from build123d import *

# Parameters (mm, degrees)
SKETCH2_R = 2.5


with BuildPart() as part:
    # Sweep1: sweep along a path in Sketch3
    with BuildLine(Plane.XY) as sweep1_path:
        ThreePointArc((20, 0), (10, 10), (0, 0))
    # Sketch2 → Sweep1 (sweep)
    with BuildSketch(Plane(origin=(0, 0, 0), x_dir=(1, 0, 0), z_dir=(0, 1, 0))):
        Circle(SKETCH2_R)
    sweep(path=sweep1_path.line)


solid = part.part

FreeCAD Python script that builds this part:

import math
import FreeCAD as App
import Part
import Sketcher

V = App.Vector

doc = App.newDocument("Part")
body = doc.addObject("PartDesign::Body", "Body")

sketch1 = body.newObject("Sketcher::SketchObject", "Sketch")
sketch1.AttachmentSupport = (doc.getObject("XZ_Plane"), [""])
sketch1.MapMode = "FlatFace"
sketch1.addGeometry(Part.Circle(V(0, 0, 0), V(0, 0, 1), 2.5), False)
sketch1.addConstraint([
    Sketcher.Constraint("Coincident", 0, 3, -1, 1),
    Sketcher.Constraint("Diameter", 0, 5.0),
])

sketch2 = body.newObject("Sketcher::SketchObject", "Sketch001")
sketch2.AttachmentSupport = (doc.getObject("XY_Plane"), [""])
sketch2.MapMode = "FlatFace"
sketch2.addGeometry(Part.ArcOfCircle(Part.Circle(V(10, 0, 0), V(0, 0, 1), 10), math.radians(0), math.radians(180)), False)
sketch2.addConstraint([
    Sketcher.Constraint("Coincident", 0, 2, -1, 1),
    Sketcher.Constraint("PointOnObject", 0, 3, -1),
    Sketcher.Constraint("PointOnObject", 0, 1, -1),
    Sketcher.Constraint("Radius", 0, 10.0),
])
doc.recompute()

additivepipe = body.newObject("PartDesign::AdditivePipe", "AdditivePipe")
additivepipe.Profile = sketch1
additivepipe.Spine = (sketch2, ["Edge1"])

doc.recompute()
